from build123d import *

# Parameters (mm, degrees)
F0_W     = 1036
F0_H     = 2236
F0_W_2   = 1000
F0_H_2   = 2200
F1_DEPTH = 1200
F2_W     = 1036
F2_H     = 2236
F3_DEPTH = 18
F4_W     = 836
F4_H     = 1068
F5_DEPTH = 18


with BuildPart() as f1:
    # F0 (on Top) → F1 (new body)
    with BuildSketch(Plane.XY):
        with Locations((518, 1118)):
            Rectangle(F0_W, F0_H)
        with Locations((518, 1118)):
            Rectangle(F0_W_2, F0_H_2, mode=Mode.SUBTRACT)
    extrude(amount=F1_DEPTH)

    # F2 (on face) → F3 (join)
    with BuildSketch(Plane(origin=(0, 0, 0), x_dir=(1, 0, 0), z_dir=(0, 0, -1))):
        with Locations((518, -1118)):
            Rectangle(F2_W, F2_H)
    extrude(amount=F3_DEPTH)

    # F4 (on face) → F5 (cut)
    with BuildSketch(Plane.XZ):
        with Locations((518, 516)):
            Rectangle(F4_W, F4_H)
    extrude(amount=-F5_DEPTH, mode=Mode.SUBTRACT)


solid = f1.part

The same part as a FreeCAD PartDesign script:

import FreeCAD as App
import Part
import Sketcher
Q = App.Units.Quantity


def add_polygon(sketch, points):
    """Adds a closed chain of lines whose ends are joined by coincident constraints."""
    first, n = sketch.GeometryCount, len(points)
    for a, b in zip(points, points[1:] + points[:1]):
        sketch.addGeometry(Part.LineSegment(App.Vector(*a, 0), App.Vector(*b, 0)), False)
    for i in range(n):
        sketch.addConstraint(Sketcher.Constraint("Coincident", first + i, 2, first + (i + 1) % n, 1))

doc = App.newDocument("Part")
body = doc.addObject("PartDesign::Body", "Body")

# Sketch on XY plane
sketch1 = doc.addObject("Sketcher::SketchObject", "Sketch")
body.addObject(sketch1)
sketch1.AttachmentSupport = (doc.XY_Plane, [""])
sketch1.MapMode = "FlatFace"
add_polygon(sketch1, [(0, 2236), (0, 0), (1036, 0), (1036, 2236)])  # lines 0-3
add_polygon(sketch1, [(1018, 18), (18, 18), (18, 2218), (1018, 2218)])  # lines 4-7
sketch1.addConstraint(Sketcher.Constraint("Vertical", 0))
sketch1.addConstraint(Sketcher.Constraint("Horizontal", 1))
sketch1.addConstraint(Sketcher.Constraint("Vertical", 2))
sketch1.addConstraint(Sketcher.Constraint("Horizontal", 3))
sketch1.addConstraint(Sketcher.Constraint("Horizontal", 4))
sketch1.addConstraint(Sketcher.Constraint("Vertical", 5))
sketch1.addConstraint(Sketcher.Constraint("Horizontal", 6))
sketch1.addConstraint(Sketcher.Constraint("Vertical", 7))
sketch1.addConstraint(Sketcher.Constraint("Coincident", 0, 2, -1, 1))
sketch1.addConstraint(Sketcher.Constraint("DistanceX", 1, 1, 1, 2, Q("1036 mm")))
sketch1.addConstraint(Sketcher.Constraint("DistanceX", 4, 2, 4, 1, Q("1000 mm")))
sketch1.addConstraint(Sketcher.Constraint("DistanceY", 0, 2, 0, 1, Q("2236 mm")))
sketch1.addConstraint(Sketcher.Constraint("DistanceY", 5, 1, 5, 2, Q("2200 mm")))
sketch1.addConstraint(Sketcher.Constraint("DistanceX", -1, 1, 4, 2, Q("18 mm")))
sketch1.addConstraint(Sketcher.Constraint("DistanceY", -1, 1, 4, 2, Q("18 mm")))
pad1 = doc.addObject("PartDesign::Pad", "Pad")
body.addObject(pad1)
pad1.Profile = sketch1
pad1.Length = 1200

# Sketch on XY plane
sketch2 = doc.addObject("Sketcher::SketchObject", "Sketch001")
body.addObject(sketch2)
sketch2.AttachmentSupport = (doc.XY_Plane, [""])
sketch2.MapMode = "FlatFace"
add_polygon(sketch2, [(0, 0), (0, 2236), (1036, 2236), (1036, 0)])  # lines 0-3
sketch2.addConstraint(Sketcher.Constraint("Vertical", 0))
sketch2.addConstraint(Sketcher.Constraint("Horizontal", 1))
sketch2.addConstraint(Sketcher.Constraint("Vertical", 2))
sketch2.addConstraint(Sketcher.Constraint("Horizontal", 3))
sketch2.addConstraint(Sketcher.Constraint("Coincident", 3, 2, -1, 1))
sketch2.addConstraint(Sketcher.Constraint("DistanceX", 1, 1, 1, 2, Q("1036 mm")))
sketch2.addConstraint(Sketcher.Constraint("DistanceY", 0, 1, 0, 2, Q("2236 mm")))
pad2 = doc.addObject("PartDesign::Pad", "Pad001")
body.addObject(pad2)
pad2.Profile = sketch2
pad2.Length = 18
pad2.Reversed = True

# Sketch on XZ plane
sketch3 = doc.addObject("Sketcher::SketchObject", "Sketch002")
body.addObject(sketch3)
sketch3.AttachmentSupport = (doc.XZ_Plane, [""])
sketch3.MapMode = "FlatFace"
add_polygon(sketch3, [(100, 1050), (100, -18), (936, -18), (936, 1050)])  # lines 0-3
sketch3.addConstraint(Sketcher.Constraint("Vertical", 0))
sketch3.addConstraint(Sketcher.Constraint("Horizontal", 1))
sketch3.addConstraint(Sketcher.Constraint("Vertical", 2))
sketch3.addConstraint(Sketcher.Constraint("Horizontal", 3))
sketch3.addConstraint(Sketcher.Constraint("DistanceX", 1, 1, 1, 2, Q("836 mm")))
sketch3.addConstraint(Sketcher.Constraint("DistanceY", 0, 2, 0, 1, Q("1068 mm")))
sketch3.addConstraint(Sketcher.Constraint("DistanceX", -1, 1, 0, 2, Q("100 mm")))
sketch3.addConstraint(Sketcher.Constraint("DistanceY", 0, 2, -1, 1, Q("18 mm")))
pocket1 = doc.addObject("PartDesign::Pocket", "Pocket")
body.addObject(pocket1)
pocket1.Profile = sketch3
pocket1.Length = 18

doc.recompute()
